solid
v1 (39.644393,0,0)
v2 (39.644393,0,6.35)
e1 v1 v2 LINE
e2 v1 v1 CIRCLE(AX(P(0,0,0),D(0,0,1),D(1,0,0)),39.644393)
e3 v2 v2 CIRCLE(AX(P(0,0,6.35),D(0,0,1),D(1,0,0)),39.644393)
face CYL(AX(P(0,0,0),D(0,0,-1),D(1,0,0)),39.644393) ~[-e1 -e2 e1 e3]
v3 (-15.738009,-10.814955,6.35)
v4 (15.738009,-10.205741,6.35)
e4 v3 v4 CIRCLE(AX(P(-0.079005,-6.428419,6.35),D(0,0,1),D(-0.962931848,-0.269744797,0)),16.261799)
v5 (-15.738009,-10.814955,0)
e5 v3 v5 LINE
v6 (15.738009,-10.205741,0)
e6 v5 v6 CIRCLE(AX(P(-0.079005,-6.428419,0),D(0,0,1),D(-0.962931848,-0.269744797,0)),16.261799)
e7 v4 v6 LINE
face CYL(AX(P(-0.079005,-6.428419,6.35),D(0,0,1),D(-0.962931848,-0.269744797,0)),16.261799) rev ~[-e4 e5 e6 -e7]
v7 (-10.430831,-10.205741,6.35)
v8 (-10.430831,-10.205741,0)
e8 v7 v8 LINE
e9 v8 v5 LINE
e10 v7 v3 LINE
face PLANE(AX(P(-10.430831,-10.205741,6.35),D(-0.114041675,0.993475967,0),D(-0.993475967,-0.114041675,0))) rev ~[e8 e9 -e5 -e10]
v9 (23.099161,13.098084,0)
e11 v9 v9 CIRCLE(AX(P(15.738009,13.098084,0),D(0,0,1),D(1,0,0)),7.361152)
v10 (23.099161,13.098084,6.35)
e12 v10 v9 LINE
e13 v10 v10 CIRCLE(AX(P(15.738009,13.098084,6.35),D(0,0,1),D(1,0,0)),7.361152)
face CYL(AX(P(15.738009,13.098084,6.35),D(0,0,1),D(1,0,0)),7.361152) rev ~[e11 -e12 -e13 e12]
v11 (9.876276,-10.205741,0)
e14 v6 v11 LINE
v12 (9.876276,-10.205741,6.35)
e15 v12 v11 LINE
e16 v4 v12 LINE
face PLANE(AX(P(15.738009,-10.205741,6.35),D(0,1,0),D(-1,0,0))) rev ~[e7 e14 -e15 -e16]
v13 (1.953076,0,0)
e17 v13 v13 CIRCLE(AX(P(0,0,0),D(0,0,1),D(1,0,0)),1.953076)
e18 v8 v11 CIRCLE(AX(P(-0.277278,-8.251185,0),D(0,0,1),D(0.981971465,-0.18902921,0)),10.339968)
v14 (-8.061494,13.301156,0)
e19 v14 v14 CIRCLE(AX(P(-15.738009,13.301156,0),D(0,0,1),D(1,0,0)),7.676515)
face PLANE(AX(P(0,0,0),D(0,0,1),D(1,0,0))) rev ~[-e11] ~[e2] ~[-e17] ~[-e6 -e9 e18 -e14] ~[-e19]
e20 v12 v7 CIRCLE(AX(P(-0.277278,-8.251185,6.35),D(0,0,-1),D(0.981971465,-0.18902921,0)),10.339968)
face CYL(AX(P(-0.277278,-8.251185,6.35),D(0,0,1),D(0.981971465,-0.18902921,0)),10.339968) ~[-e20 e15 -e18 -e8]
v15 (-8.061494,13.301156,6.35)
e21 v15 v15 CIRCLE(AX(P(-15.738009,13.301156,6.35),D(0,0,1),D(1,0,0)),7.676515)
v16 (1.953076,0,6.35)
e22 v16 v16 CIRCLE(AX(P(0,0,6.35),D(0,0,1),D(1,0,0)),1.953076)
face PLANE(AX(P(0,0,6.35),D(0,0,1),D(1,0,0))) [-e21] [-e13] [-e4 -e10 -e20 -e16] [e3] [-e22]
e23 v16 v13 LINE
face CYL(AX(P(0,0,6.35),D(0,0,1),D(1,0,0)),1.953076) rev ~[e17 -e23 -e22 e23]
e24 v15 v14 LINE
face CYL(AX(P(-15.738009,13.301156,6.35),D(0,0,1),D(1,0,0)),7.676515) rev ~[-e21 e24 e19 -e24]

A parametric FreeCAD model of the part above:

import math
import FreeCAD as App
import Part
import Sketcher
from FreeCAD import Vector
Q = App.Units.Quantity

doc = App.newDocument("Part")
body = doc.addObject("PartDesign::Body", "Body")

# Sketch on XY plane
sketch1 = body.newObject("Sketcher::SketchObject", "Sketch")
sketch1.AttachmentSupport = (doc.getObject("XY_Plane"), [""])
sketch1.MapMode = "FlatFace"
sketch1.addGeometry(Part.Circle(Vector(0, 0, 0), Vector(0, 0, 1), 40), False)
sketch1.addConstraint([
    Sketcher.Constraint("Coincident", 0, 3, -1, 1),
    Sketcher.Constraint("Diameter", 0, 79.288786),
])
pad1 = body.newObject("PartDesign::Pad", "Pad")
pad1.Profile = sketch1
pad1.Length = Q("0.25 in")

# Sketch on XY plane
sketch2 = body.newObject("Sketcher::SketchObject", "Sketch001")
sketch2.AttachmentSupport = (doc.getObject("XY_Plane"), [""])
sketch2.MapMode = "FlatFace"
sketch2.AttachmentOffset = App.Placement(Vector(0, 0, 0.25 * 25.4), App.Rotation())
sketch2.addGeometry([
    Part.Circle(Vector(-15.7, 13.3, 0), Vector(0, 0, 1), 7.7),  # 0
    Part.Circle(Vector(15.7, 13.1, 0), Vector(0, 0, 1), 7.4),  # 1
    Part.Circle(Vector(0, 0, 0), Vector(0, 0, 1), 2),  # 2
    Part.LineSegment(Vector(-10.4, -10.2, 0), Vector(-15.7, -10.8, 0)),  # 3
    Part.ArcOfCircle(Part.Circle(Vector(-0.1, -6.4, 0), Vector(0, 0, 1), 16.3), math.radians(-164), math.radians(-13)),  # 4
    Part.LineSegment(Vector(15.7, -10.2, 0), Vector(9.9, -10.2, 0)),  # 5
    Part.ArcOfCircle(Part.Circle(Vector(-0.3, -8.3, 0), Vector(0, 0, 1), 10.3), math.radians(-169), math.radians(-11)),  # 6
], False)
sketch2.addConstraint([
    Sketcher.Constraint("Coincident", 3, 2, 4, 1),
    Sketcher.Constraint("Coincident", 4, 2, 5, 1),
    Sketcher.Constraint("Coincident", 5, 2, 6, 2),
    Sketcher.Constraint("Coincident", 6, 1, 3, 1),
    Sketcher.Constraint("Horizontal", 5),
    Sketcher.Constraint("Coincident", 2, 3, -1, 1),
    Sketcher.Constraint("Horizontal", 5, 2, 6, 1),
    Sketcher.Constraint("Vertical", 0, 3, 3, 2),
    Sketcher.Constraint("Vertical", 1, 3, 4, 2),
    Sketcher.Constraint("Radius", 4, 16.261799),
    Sketcher.Constraint("Diameter", 0, 15.35303),
    Sketcher.Constraint("Diameter", 1, 14.722304),
    Sketcher.Constraint("Diameter", 2, 3.906152),
    Sketcher.Constraint("Radius", 6, 10.339968),
    Sketcher.Constraint("Distance", 3, 5.34203),
    Sketcher.Constraint("DistanceX", 5, 2, 5, 1, 5.861733),
    Sketcher.Constraint("DistanceX", 0, 3, -1, 1, 15.738009),
    Sketcher.Constraint("DistanceX", -1, 1, 1, 3, 15.738009),
    Sketcher.Constraint("DistanceY", 4, 3, -1, 1, 6.428419),
    Sketcher.Constraint("DistanceY", 4, 2, -1, 1, 10.205741),
    Sketcher.Constraint("DistanceY", 6, 3, 0, 3, 21.552341),
    Sketcher.Constraint("DistanceY", 6, 3, 1, 3, 21.349269),
])
pocket1 = body.newObject("PartDesign::Pocket", "Pocket")
pocket1.Profile = sketch2
pocket1.Type = "ThroughAll"

doc.recompute()
